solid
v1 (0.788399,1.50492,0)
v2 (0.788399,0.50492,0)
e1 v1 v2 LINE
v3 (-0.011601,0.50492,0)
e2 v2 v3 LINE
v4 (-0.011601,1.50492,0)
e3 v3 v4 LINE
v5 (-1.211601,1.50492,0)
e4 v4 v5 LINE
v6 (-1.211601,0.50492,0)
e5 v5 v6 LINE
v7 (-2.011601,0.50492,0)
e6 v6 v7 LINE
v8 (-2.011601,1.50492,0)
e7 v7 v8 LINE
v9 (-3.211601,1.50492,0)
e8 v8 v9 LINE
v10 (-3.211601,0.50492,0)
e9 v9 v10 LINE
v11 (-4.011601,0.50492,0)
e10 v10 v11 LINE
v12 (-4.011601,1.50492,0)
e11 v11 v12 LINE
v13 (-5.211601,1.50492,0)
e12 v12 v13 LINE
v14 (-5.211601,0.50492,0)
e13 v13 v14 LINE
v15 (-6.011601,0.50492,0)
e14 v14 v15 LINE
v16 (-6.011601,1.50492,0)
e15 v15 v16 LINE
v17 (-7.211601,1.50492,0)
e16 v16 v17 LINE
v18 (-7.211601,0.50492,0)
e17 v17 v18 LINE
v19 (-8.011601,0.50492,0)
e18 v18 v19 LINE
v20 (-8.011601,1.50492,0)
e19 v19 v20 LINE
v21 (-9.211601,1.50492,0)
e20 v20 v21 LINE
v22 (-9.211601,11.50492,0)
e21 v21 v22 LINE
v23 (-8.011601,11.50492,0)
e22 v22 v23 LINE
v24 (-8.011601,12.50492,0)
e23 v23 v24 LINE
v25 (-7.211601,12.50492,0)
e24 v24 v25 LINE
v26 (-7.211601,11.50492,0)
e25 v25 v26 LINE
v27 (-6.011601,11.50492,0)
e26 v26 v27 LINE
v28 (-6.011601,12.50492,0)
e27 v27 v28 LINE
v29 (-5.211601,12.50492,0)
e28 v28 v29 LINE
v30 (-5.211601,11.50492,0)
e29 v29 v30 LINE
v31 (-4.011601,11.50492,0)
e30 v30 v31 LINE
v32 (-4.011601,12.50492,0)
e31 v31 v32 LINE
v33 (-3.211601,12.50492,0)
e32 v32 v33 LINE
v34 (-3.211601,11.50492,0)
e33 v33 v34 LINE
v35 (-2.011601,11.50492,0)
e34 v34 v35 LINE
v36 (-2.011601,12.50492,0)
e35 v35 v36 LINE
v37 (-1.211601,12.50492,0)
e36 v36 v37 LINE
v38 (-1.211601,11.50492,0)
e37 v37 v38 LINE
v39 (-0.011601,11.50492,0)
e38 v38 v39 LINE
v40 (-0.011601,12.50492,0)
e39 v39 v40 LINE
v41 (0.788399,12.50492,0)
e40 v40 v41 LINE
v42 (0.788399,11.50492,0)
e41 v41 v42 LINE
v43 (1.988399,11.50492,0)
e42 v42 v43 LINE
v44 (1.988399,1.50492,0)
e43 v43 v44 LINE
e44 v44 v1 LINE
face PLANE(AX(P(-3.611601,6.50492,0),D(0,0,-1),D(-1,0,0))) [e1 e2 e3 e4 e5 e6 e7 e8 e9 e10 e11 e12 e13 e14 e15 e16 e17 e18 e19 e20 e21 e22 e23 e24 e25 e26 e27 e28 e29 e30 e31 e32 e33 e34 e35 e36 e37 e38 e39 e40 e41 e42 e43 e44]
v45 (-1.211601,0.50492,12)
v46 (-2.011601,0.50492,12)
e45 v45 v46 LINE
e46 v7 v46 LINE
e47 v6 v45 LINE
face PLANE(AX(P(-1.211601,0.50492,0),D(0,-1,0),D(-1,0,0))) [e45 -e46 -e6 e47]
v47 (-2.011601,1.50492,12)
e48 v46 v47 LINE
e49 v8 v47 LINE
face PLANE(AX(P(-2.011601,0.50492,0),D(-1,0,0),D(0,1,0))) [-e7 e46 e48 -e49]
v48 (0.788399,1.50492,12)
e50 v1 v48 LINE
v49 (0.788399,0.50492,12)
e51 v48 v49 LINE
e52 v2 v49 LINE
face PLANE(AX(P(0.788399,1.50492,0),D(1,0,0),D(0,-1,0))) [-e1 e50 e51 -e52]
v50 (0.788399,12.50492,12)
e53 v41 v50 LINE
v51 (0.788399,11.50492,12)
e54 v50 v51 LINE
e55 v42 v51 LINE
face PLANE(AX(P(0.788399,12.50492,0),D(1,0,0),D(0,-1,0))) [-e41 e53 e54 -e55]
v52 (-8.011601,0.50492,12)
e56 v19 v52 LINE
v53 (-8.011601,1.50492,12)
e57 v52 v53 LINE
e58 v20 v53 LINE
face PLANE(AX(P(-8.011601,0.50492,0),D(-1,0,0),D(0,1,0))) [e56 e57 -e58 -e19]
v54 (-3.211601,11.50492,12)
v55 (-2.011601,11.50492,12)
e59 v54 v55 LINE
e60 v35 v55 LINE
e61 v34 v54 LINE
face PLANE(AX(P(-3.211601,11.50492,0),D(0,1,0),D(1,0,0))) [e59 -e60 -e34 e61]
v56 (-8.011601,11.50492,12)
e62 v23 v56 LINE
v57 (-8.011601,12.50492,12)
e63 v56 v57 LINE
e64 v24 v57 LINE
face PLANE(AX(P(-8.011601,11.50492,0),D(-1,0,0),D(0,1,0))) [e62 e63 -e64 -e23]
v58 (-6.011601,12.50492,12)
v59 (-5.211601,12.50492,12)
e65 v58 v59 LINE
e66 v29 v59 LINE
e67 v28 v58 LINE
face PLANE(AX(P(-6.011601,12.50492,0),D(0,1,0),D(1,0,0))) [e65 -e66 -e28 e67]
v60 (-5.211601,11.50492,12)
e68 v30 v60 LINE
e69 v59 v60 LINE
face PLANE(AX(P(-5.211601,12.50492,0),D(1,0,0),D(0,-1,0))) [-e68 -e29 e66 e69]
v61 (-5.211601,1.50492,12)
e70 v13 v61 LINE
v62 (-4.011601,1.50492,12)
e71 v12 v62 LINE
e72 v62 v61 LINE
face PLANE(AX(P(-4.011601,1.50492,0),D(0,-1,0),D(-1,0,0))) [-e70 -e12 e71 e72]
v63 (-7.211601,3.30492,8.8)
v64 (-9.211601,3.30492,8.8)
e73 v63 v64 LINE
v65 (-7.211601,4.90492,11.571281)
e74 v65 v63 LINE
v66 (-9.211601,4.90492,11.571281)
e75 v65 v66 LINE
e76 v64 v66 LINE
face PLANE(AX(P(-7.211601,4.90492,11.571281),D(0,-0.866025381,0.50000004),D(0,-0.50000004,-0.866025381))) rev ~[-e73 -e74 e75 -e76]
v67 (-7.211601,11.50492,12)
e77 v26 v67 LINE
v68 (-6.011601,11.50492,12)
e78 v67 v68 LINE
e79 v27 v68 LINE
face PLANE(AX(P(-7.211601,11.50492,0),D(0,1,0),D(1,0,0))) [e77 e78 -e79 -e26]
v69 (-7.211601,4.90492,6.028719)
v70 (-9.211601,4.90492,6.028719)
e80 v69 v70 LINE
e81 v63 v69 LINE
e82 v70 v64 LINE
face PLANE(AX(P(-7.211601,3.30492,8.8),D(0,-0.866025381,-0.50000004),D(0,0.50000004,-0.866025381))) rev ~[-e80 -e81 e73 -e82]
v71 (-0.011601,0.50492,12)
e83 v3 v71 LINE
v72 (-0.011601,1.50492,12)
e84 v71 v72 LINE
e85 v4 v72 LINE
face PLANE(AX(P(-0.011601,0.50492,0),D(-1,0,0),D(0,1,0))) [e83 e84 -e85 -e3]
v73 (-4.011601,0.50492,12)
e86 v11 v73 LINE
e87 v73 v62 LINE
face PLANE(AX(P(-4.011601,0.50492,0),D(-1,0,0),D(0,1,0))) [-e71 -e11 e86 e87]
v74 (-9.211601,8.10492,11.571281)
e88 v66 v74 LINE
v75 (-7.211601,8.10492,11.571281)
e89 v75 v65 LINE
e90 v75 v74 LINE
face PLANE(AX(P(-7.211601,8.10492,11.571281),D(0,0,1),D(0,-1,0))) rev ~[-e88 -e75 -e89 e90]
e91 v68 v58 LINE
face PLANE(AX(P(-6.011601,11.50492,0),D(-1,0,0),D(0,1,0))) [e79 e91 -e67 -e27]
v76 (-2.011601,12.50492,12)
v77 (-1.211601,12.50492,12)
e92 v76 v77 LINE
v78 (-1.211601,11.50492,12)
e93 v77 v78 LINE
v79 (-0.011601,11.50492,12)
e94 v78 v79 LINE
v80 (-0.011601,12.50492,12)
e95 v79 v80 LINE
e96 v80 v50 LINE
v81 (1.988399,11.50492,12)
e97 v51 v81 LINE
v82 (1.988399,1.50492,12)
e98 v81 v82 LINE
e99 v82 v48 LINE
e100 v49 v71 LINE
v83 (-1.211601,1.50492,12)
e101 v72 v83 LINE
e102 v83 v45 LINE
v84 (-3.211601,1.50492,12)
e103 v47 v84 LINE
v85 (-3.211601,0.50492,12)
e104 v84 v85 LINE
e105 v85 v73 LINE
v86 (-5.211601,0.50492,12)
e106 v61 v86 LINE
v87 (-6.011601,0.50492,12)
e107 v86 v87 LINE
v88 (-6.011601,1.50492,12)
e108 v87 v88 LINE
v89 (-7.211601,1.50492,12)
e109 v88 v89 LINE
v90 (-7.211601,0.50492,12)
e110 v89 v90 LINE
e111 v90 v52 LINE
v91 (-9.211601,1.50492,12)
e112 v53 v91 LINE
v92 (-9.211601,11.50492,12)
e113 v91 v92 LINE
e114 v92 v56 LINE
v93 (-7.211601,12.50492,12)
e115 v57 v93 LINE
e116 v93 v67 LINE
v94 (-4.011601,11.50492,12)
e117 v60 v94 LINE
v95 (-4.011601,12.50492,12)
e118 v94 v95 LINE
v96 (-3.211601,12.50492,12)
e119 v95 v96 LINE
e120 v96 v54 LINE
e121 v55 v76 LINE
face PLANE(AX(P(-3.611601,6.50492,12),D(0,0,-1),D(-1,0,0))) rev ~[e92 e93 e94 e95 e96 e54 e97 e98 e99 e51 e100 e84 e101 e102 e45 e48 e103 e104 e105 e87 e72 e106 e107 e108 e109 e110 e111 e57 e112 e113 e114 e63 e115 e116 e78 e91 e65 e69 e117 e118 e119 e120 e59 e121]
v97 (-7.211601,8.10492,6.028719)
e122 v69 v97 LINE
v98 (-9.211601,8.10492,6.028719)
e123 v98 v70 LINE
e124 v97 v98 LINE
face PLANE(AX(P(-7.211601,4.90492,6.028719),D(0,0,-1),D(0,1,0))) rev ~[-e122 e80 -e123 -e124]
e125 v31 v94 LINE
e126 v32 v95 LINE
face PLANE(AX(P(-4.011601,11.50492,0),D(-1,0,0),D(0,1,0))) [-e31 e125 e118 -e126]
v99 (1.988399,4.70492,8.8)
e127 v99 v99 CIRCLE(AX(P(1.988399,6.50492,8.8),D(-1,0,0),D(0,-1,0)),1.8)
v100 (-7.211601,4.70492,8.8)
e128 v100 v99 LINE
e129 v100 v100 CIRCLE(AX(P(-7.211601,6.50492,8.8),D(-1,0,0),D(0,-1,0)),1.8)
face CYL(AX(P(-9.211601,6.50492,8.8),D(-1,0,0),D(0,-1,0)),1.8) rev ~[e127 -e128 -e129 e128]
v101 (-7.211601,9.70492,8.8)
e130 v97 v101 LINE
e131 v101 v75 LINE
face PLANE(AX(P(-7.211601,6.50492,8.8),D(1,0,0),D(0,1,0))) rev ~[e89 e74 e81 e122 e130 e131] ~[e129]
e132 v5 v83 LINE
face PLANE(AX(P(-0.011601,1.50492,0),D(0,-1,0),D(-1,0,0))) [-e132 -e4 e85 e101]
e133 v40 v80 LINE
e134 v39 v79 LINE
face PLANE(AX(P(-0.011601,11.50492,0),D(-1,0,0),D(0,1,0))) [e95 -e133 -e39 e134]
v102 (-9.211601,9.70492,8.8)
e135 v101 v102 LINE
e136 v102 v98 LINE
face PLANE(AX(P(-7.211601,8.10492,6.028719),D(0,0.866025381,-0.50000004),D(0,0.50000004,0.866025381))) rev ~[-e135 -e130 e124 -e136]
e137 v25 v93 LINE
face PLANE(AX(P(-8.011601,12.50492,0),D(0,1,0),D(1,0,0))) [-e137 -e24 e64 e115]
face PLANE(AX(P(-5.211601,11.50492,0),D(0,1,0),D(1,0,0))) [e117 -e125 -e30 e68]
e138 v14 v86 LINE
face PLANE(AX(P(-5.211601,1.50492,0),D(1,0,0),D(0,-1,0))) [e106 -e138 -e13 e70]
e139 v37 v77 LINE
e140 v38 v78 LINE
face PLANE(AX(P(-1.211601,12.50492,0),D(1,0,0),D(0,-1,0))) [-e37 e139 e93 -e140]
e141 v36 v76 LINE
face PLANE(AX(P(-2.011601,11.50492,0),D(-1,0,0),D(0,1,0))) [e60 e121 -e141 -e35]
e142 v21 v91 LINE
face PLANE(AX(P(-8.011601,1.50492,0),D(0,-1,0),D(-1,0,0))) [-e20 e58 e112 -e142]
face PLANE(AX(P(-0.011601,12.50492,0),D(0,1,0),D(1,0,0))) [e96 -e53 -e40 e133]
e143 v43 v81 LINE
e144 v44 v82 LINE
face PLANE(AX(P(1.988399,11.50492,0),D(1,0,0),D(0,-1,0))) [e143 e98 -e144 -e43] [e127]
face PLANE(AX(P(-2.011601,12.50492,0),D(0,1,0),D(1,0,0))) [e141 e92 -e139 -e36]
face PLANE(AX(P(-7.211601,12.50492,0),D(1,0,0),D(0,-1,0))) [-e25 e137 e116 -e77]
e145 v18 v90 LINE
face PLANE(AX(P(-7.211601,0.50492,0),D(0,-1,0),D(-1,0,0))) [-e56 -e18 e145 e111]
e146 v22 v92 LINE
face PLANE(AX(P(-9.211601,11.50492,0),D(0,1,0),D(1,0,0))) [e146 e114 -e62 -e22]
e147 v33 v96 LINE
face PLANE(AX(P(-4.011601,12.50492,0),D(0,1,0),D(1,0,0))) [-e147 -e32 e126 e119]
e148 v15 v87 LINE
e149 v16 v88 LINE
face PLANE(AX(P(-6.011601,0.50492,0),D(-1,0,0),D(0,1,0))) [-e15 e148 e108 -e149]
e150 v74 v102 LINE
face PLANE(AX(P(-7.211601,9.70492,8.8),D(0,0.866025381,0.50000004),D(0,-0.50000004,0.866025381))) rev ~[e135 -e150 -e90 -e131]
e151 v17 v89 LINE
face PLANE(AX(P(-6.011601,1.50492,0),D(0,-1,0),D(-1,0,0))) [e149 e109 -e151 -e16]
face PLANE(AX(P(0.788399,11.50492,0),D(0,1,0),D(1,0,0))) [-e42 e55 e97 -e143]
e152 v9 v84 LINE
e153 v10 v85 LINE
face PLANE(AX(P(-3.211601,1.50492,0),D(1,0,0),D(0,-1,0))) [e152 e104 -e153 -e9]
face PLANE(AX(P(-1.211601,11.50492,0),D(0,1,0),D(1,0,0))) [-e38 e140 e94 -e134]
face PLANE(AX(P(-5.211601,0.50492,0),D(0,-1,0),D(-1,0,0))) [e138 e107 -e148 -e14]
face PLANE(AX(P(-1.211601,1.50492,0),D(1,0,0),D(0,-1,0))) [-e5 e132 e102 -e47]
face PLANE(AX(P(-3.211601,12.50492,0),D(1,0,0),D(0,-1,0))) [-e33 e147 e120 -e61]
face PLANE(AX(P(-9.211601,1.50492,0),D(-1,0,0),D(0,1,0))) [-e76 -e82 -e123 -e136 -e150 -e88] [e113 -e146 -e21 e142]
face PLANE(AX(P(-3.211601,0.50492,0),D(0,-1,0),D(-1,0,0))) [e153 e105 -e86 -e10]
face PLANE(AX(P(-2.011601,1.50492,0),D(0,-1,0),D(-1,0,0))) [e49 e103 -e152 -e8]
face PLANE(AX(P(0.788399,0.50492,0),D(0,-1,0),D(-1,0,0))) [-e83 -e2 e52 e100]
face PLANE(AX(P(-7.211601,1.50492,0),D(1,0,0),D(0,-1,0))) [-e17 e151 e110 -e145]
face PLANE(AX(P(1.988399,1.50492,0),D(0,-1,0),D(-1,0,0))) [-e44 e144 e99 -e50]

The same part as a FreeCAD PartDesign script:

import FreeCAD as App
import Part
import Sketcher
Q = App.Units.Quantity


def add_polygon(sketch, points):
    """Adds a closed chain of lines whose ends are joined by coincident constraints."""
    first, n = sketch.GeometryCount, len(points)
    for a, b in zip(points, points[1:] + points[:1]):
        sketch.addGeometry(Part.LineSegment(App.Vector(*a, 0), App.Vector(*b, 0)), False)
    for i in range(n):
        sketch.addConstraint(Sketcher.Constraint("Coincident", first + i, 2, first + (i + 1) % n, 1))

doc = App.newDocument("Part")
body = doc.addObject("PartDesign::Body", "Body")

sketch1 = body.newObject("Sketcher::SketchObject", "Sketch")
sketch1.AttachmentSupport = (doc.getObject("XY_Plane"), [""])
sketch1.MapMode = "FlatFace"
add_polygon(sketch1, [(-8, 11.5), (-9.2, 11.5), (-9.2, 1.5), (-8, 1.5), (-8, 0.5), (-7.2, 0.5), (-7.2, 1.5), (-6, 1.5), (-6, 0.5), (-5.2, 0.5), (-5.2, 1.5), (-4, 1.5), (-4, 0.5), (-3.2, 0.5), (-3.2, 1.5), (-2, 1.5), (-2, 0.5), (-1.2, 0.5), (-1.2, 1.5), (0, 1.5), (0, 0.5), (0.8, 0.5), (0.8, 1.5), (2, 1.5), (2, 11.5), (0.8, 11.5), (0.8, 12.5), (0, 12.5), (0, 11.5), (-1.2, 11.5), (-1.2, 12.5), (-2, 12.5), (-2, 11.5), (-3.2, 11.5), (-3.2, 12.5), (-4, 12.5), (-4, 11.5), (-5.2, 11.5), (-5.2, 12.5), (-6, 12.5), (-6, 11.5), (-7.2, 11.5), (-7.2, 12.5), (-8, 12.5)])
sketch1.addConstraint(Sketcher.Constraint("Horizontal", 0))
sketch1.addConstraint(Sketcher.Constraint("Vertical", 1))
sketch1.addConstraint(Sketcher.Constraint("Horizontal", 2))
sketch1.addConstraint(Sketcher.Constraint("Vertical", 3))
sketch1.addConstraint(Sketcher.Constraint("Horizontal", 4))
sketch1.addConstraint(Sketcher.Constraint("Vertical", 5))
sketch1.addConstraint(Sketcher.Constraint("Horizontal", 6))
sketch1.addConstraint(Sketcher.Constraint("Vertical", 7))
sketch1.addConstraint(Sketcher.Constraint("Horizontal", 8))
sketch1.addConstraint(Sketcher.Constraint("Vertical", 9))
sketch1.addConstraint(Sketcher.Constraint("Horizontal", 10))
sketch1.addConstraint(Sketcher.Constraint("Vertical", 11))
sketch1.addConstraint(Sketcher.Constraint("Horizontal", 12))
sketch1.addConstraint(Sketcher.Constraint("Vertical", 13))
sketch1.addConstraint(Sketcher.Constraint("Horizontal", 14))
sketch1.addConstraint(Sketcher.Constraint("Vertical", 15))
sketch1.addConstraint(Sketcher.Constraint("Horizontal", 16))
sketch1.addConstraint(Sketcher.Constraint("Vertical", 17))
sketch1.addConstraint(Sketcher.Constraint("Horizontal", 18))
sketch1.addConstraint(Sketcher.Constraint("Vertical", 19))
sketch1.addConstraint(Sketcher.Constraint("Horizontal", 20))
sketch1.addConstraint(Sketcher.Constraint("Vertical", 21))
sketch1.addConstraint(Sketcher.Constraint("Horizontal", 22))
sketch1.addConstraint(Sketcher.Constraint("Vertical", 23))
sketch1.addConstraint(Sketcher.Constraint("Horizontal", 24))
sketch1.addConstraint(Sketcher.Constraint("Vertical", 25))
sketch1.addConstraint(Sketcher.Constraint("Horizontal", 26))
sketch1.addConstraint(Sketcher.Constraint("Vertical", 27))
sketch1.addConstraint(Sketcher.Constraint("Horizontal", 28))
sketch1.addConstraint(Sketcher.Constraint("Vertical", 29))
sketch1.addConstraint(Sketcher.Constraint("Horizontal", 30))
sketch1.addConstraint(Sketcher.Constraint("Vertical", 31))
sketch1.addConstraint(Sketcher.Constraint("Horizontal", 32))
sketch1.addConstraint(Sketcher.Constraint("Vertical", 33))
sketch1.addConstraint(Sketcher.Constraint("Horizontal", 34))
sketch1.addConstraint(Sketcher.Constraint("Vertical", 35))
sketch1.addConstraint(Sketcher.Constraint("Horizontal", 36))
sketch1.addConstraint(Sketcher.Constraint("Vertical", 37))
sketch1.addConstraint(Sketcher.Constraint("Horizontal", 38))
sketch1.addConstraint(Sketcher.Constraint("Vertical", 39))
sketch1.addConstraint(Sketcher.Constraint("Horizontal", 40))
sketch1.addConstraint(Sketcher.Constraint("Vertical", 41))
sketch1.addConstraint(Sketcher.Constraint("Horizontal", 42))
sketch1.addConstraint(Sketcher.Constraint("Vertical", 43))
sketch1.addConstraint(Sketcher.Constraint("Horizontal", 2, 2, 5, 2))
sketch1.addConstraint(Sketcher.Constraint("Horizontal", 4, 2, 7, 2))
sketch1.addConstraint(Sketcher.Constraint("Horizontal", 6, 2, 9, 2))
sketch1.addConstraint(Sketcher.Constraint("Horizontal", 8, 2, 11, 2))
sketch1.addConstraint(Sketcher.Constraint("Horizontal", 10, 2, 13, 2))
sketch1.addConstraint(Sketcher.Constraint("Horizontal", 12, 2, 15, 2))
sketch1.addConstraint(Sketcher.Constraint("Horizontal", 14, 2, 17, 2))
sketch1.addConstraint(Sketcher.Constraint("Horizontal", 16, 2, 19, 2))
sketch1.addConstraint(Sketcher.Constraint("Horizontal", 18, 2, 21, 2))
sketch1.addConstraint(Sketcher.Constraint("Horizontal", 0, 2, 23, 2))
sketch1.addConstraint(Sketcher.Constraint("Horizontal", 24, 2, 27, 2))
sketch1.addConstraint(Sketcher.Constraint("Horizontal", 26, 2, 29, 2))
sketch1.addConstraint(Sketcher.Constraint("Horizontal", 28, 2, 31, 2))
sketch1.addConstraint(Sketcher.Constraint("Horizontal", 30, 2, 33, 2))
sketch1.addConstraint(Sketcher.Constraint("Horizontal", 32, 2, 35, 2))
sketch1.addConstraint(Sketcher.Constraint("Horizontal", 34, 2, 37, 2))
sketch1.addConstraint(Sketcher.Constraint("Horizontal", 36, 2, 39, 2))
sketch1.addConstraint(Sketcher.Constraint("Horizontal", 38, 2, 41, 2))
sketch1.addConstraint(Sketcher.Constraint("Vertical", 21, 2, 24, 2))
sketch1.addConstraint(Sketcher.Constraint("Vertical", 19, 2, 26, 2))
sketch1.addConstraint(Sketcher.Constraint("Vertical", 17, 2, 28, 2))
sketch1.addConstraint(Sketcher.Constraint("Vertical", 15, 2, 30, 2))
sketch1.addConstraint(Sketcher.Constraint("Vertical", 13, 2, 32, 2))
sketch1.addConstraint(Sketcher.Constraint("Vertical", 11, 2, 34, 2))
sketch1.addConstraint(Sketcher.Constraint("Vertical", 9, 2, 36, 2))
sketch1.addConstraint(Sketcher.Constraint("Vertical", 7, 2, 38, 2))
sketch1.addConstraint(Sketcher.Constraint("Vertical", 5, 2, 40, 2))
sketch1.addConstraint(Sketcher.Constraint("Vertical", 3, 2, 42, 2))
sketch1.addConstraint(Sketcher.Constraint("Equal", 2, 6))
sketch1.addConstraint(Sketcher.Constraint("Equal", 4, 8))
sketch1.addConstraint(Sketcher.Constraint("Equal", 6, 10))
sketch1.addConstraint(Sketcher.Constraint("Equal", 8, 12))
sketch1.addConstraint(Sketcher.Constraint("Equal", 10, 14))
sketch1.addConstraint(Sketcher.Constraint("Equal", 12, 16))
sketch1.addConstraint(Sketcher.Constraint("Equal", 14, 18))
sketch1.addConstraint(Sketcher.Constraint("Equal", 16, 20))
sketch1.addConstraint(Sketcher.Constraint("Equal", 18, 22))
sketch1.addConstraint(Sketcher.Constraint("Equal", 21, 25))
sketch1.addConstraint(Sketcher.Constraint("DistanceY", 1, 2, 1, 1, 10.0))
sketch1.addConstraint(Sketcher.Constraint("DistanceY", 3, 2, 3, 1, 1.0))
sketch1.addConstraint(Sketcher.Constraint("DistanceX", 0, 2, 0, 1, 1.2))
sketch1.addConstraint(Sketcher.Constraint("DistanceX", 4, 1, 4, 2, 0.8))
sketch1.addConstraint(Sketcher.Constraint("DistanceX", 0, 2, -1, 1, 9.211601))
sketch1.addConstraint(Sketcher.Constraint("DistanceY", -1, 1, 0, 2, 11.50492))
pad1 = body.newObject("PartDesign::Pad", "Pad")
pad1.Profile = sketch1
pad1.Length = 12

sketch2 = body.newObject("Sketcher::SketchObject", "Sketch001")
sketch2.AttachmentSupport = (doc.getObject("YZ_Plane"), [""])
sketch2.MapMode = "FlatFace"
sketch2.AttachmentOffset = App.Placement(App.Vector(0, 0, -9.211601), App.Rotation())
sketch2.addGeometry(Part.Circle(App.Vector(6.5, 8.8, 0), App.Vector(0, 0, 1), 1.8), False)
sketch2.addConstraint(Sketcher.Constraint("Diameter", 0, 3.6))
sketch2.addConstraint(Sketcher.Constraint("DistanceY", -1, 1, 0, 3, 8.8))
sketch2.addConstraint(Sketcher.Constraint("DistanceX", -1, 1, 0, 3, 6.50492))
pocket1 = body.newObject("PartDesign::Pocket", "Pocket")
pocket1.Profile = sketch2
pocket1.Type = "ThroughAll"
pocket1.Reversed = True

sketch3 = body.newObject("Sketcher::SketchObject", "Sketch002")
sketch3.AttachmentSupport = (doc.getObject("YZ_Plane"), [""])
sketch3.MapMode = "FlatFace"
sketch3.AttachmentOffset = App.Placement(App.Vector(0, 0, -7.211601), App.Rotation())
add_polygon(sketch3, [(8.1, 6), (9.7, 8.8), (8.1, 11.6), (4.9, 11.6), (3.3, 8.8), (4.9, 6)])
sketch3.addConstraint(Sketcher.Constraint("Horizontal", 2))
sketch3.addConstraint(Sketcher.Constraint("Horizontal", 5))
sketch3.addConstraint(Sketcher.Constraint("Parallel", 0, 3))
sketch3.addConstraint(Sketcher.Constraint("Parallel", 1, 4))
sketch3.addConstraint(Sketcher.Constraint("Horizontal", 0, 2, 3, 2))
sketch3.addConstraint(Sketcher.Constraint("Vertical", 2, 2, 4, 2))
sketch3.addConstraint(Sketcher.Constraint("Vertical", 1, 2, 5, 2))
sketch3.addConstraint(Sketcher.Constraint("Angle", 0, Q("59.999997 deg")))
sketch3.addConstraint(Sketcher.Constraint("DistanceX", 2, 2, 2, 1, 3.2))
sketch3.addConstraint(Sketcher.Constraint("Distance", 0, 3.2))
sketch3.addConstraint(Sketcher.Constraint("DistanceY", -1, 1, 0, 2, 8.8))
sketch3.addConstraint(Sketcher.Constraint("DistanceX", -1, 1, 0, 2, 9.70492))
pocket2 = body.newObject("PartDesign::Pocket", "Pocket001")
pocket2.Profile = sketch3
pocket2.Length = 3

doc.recompute()
